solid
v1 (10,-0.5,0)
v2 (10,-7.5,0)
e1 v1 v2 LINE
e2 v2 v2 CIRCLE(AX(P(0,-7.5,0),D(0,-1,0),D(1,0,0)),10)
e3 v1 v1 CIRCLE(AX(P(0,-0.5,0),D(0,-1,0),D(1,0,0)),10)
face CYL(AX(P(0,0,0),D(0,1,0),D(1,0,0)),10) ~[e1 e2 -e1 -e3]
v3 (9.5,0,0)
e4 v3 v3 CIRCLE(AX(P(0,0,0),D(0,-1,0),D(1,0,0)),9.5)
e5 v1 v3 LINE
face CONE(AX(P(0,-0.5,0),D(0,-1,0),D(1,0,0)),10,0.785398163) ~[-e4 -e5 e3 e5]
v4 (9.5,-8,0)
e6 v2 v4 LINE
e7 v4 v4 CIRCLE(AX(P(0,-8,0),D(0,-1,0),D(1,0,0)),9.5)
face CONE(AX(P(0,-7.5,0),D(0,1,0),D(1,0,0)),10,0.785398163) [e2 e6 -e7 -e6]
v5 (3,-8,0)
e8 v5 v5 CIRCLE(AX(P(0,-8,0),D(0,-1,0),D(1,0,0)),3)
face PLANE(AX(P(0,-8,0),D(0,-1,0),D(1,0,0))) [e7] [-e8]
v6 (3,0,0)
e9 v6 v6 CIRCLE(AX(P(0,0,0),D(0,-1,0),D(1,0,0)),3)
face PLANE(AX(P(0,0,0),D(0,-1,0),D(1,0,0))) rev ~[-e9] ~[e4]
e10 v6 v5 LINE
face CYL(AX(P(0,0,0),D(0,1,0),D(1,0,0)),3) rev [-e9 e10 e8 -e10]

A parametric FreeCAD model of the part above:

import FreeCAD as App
import Part
import Sketcher
from FreeCAD import Vector
Q = App.Units.Quantity


def edges_at(feature, points):
    """Names of the edges that pass closest to the given points."""
    edges = feature.Shape.Edges
    near = lambda p: min(range(len(edges)), key=lambda i: edges[i].distToShape(Part.Vertex(*p))[0])
    return sorted({f"Edge{near(p) + 1}" for p in points})

doc = App.newDocument("Part")
body = doc.addObject("PartDesign::Body", "Body")

sketch1 = doc.addObject("Sketcher::SketchObject", "Sketch")
body.addObject(sketch1)
sketch1.AttachmentSupport = (doc.XZ_Plane, [""])
sketch1.MapMode = "FlatFace"
sketch1.addGeometry([
    Part.Circle(Vector(0, 0, 0), Vector(0, 0, 1), 10),
    Part.Circle(Vector(0, 0, 0), Vector(0, 0, 1), 3),
], False)
sketch1.addConstraint([
    Sketcher.Constraint("Coincident", 0, 3, -1, 1),
    Sketcher.Constraint("Coincident", 1, 3, -1, 1),
    Sketcher.Constraint("Diameter", 0, Q("20 mm")),
    Sketcher.Constraint("Diameter", 1, Q("6 mm")),
])
pad1 = doc.addObject("PartDesign::Pad", "Pad")
body.addObject(pad1)
pad1.Profile = sketch1
pad1.Length = 8
doc.recompute()

chamfer = doc.addObject("PartDesign::Chamfer", "Chamfer")
body.addObject(chamfer)
chamfer.Base = (pad1, edges_at(pad1, [(-10, -8, 0), (-10, 0, 0)]))
chamfer.Size = 0.5

doc.recompute()
